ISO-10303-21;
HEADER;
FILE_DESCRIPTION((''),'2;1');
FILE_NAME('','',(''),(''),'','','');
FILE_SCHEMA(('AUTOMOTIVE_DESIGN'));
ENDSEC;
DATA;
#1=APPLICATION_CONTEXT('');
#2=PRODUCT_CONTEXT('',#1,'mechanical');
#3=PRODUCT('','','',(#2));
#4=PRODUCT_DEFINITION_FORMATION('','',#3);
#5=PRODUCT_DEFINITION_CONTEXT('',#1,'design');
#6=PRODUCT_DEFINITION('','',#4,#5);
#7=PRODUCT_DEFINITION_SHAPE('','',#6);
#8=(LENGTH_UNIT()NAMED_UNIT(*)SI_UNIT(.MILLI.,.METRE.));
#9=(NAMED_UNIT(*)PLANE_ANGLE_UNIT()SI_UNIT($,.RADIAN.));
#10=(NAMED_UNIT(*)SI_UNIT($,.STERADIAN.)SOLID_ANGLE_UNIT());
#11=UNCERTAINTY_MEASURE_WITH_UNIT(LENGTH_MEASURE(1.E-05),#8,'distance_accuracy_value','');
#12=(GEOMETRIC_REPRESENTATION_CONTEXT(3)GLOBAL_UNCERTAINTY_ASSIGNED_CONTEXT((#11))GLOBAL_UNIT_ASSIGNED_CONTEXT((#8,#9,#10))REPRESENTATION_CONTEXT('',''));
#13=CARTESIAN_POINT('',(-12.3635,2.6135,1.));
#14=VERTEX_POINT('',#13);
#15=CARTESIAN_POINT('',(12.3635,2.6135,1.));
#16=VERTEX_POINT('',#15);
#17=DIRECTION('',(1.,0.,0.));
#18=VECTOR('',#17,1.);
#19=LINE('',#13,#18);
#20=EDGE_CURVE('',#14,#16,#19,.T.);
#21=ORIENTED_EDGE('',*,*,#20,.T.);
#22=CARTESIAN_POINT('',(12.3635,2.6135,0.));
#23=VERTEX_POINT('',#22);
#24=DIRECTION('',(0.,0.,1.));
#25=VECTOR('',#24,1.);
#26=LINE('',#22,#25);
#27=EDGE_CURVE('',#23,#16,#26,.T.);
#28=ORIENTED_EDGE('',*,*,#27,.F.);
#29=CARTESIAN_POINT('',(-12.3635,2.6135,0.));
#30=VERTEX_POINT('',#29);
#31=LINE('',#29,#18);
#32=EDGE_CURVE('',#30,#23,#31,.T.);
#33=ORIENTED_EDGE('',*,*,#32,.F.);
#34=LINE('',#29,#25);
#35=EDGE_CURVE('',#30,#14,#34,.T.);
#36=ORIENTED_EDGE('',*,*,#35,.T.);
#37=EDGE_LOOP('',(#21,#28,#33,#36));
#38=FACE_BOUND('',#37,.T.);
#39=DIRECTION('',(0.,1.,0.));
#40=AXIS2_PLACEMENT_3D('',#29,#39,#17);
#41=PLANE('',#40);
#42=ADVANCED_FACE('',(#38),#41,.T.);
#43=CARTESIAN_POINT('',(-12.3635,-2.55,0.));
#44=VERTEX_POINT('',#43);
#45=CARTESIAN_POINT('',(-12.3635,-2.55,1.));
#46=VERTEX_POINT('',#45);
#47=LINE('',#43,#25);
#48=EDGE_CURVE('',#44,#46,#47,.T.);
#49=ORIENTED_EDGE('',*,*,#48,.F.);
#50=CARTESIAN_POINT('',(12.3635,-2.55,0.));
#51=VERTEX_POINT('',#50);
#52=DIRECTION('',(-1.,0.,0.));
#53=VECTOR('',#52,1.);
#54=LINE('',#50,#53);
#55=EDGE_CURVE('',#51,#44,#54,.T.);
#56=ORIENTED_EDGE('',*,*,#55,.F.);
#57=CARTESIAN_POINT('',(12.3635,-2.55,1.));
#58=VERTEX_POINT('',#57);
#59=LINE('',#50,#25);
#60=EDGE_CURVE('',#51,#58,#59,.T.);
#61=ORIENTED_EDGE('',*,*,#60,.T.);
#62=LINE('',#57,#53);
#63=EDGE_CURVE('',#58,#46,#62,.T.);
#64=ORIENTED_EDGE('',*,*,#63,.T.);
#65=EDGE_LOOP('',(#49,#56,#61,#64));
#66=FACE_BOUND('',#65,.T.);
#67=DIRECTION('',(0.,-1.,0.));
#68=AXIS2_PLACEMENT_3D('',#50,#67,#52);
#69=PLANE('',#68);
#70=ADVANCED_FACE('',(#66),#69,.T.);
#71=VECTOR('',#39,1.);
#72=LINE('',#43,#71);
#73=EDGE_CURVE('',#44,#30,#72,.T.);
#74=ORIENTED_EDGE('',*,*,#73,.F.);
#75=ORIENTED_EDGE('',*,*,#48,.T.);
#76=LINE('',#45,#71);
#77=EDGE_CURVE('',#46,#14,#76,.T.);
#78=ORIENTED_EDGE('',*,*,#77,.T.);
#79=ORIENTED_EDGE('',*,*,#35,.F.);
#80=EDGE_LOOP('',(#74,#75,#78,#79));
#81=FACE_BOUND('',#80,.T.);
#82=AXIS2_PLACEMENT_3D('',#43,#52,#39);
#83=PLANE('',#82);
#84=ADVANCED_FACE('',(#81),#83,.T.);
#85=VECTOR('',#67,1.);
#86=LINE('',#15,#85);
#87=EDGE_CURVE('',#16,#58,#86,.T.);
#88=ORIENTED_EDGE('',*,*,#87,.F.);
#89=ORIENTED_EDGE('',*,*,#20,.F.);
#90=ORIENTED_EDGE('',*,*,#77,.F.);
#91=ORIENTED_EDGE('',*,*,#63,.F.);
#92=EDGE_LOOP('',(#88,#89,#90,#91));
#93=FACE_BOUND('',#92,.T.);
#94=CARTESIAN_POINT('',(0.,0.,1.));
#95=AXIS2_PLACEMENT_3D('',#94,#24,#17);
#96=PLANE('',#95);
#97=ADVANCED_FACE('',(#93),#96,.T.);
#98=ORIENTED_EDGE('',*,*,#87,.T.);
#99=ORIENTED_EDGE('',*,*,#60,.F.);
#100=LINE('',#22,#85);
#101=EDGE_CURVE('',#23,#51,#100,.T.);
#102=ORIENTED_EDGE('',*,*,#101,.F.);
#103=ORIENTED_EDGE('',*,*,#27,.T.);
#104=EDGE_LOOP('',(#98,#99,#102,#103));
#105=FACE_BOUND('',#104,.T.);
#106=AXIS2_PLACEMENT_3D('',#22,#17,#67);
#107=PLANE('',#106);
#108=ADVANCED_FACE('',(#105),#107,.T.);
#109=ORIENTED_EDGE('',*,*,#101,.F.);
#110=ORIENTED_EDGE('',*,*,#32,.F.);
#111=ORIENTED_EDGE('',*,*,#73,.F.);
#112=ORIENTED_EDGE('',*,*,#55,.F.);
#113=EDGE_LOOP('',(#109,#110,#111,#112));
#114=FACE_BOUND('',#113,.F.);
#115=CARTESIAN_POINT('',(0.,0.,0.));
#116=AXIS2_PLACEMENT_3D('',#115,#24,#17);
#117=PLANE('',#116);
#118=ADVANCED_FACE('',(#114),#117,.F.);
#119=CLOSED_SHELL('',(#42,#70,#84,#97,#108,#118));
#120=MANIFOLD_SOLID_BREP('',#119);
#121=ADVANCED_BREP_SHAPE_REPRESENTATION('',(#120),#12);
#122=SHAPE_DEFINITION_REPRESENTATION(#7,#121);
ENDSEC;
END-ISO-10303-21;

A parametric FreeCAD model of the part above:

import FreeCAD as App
import Part
import Sketcher
from FreeCAD import Vector


def add_polygon(sketch, points):
    """Adds a closed chain of lines whose ends are joined by coincident constraints."""
    first, n = sketch.GeometryCount, len(points)
    for a, b in zip(points, points[1:] + points[:1]):
        sketch.addGeometry(Part.LineSegment(App.Vector(*a, 0), App.Vector(*b, 0)), False)
    for i in range(n):
        sketch.addConstraint(Sketcher.Constraint("Coincident", first + i, 2, first + (i + 1) % n, 1))

doc = App.newDocument("Part")
body = doc.addObject("PartDesign::Body", "Body")

sketch1 = doc.addObject("Sketcher::SketchObject", "Sketch")
body.addObject(sketch1)
sketch1.AttachmentSupport = (doc.XY_Plane, [""])
sketch1.MapMode = "FlatFace"
add_polygon(sketch1, [(12, 3), (-12, 3), (-12, -3), (12, -3)])
sketch1.addConstraint(Sketcher.Constraint("Horizontal", 0))
sketch1.addConstraint(Sketcher.Constraint("Vertical", 1))
sketch1.addConstraint(Sketcher.Constraint("Horizontal", 2))
sketch1.addConstraint(Sketcher.Constraint("Vertical", 3))
sketch1.addConstraint(Sketcher.Constraint("DistanceX", 0, 2, 0, 1, 24.727))
sketch1.addConstraint(Sketcher.Constraint("DistanceY", 1, 2, -1, 1, 2.55))
sketch1.addConstraint(Sketcher.Constraint("DistanceY", 1, 2, 1, 1, 5.1635))
sketch1.addConstraint(Sketcher.Constraint("DistanceX", 0, 2, -1, 1, 12.3635))
pad1 = doc.addObject("PartDesign::Pad", "Pad")
body.addObject(pad1)
pad1.Profile = sketch1
pad1.Length = 1

doc.recompute()
